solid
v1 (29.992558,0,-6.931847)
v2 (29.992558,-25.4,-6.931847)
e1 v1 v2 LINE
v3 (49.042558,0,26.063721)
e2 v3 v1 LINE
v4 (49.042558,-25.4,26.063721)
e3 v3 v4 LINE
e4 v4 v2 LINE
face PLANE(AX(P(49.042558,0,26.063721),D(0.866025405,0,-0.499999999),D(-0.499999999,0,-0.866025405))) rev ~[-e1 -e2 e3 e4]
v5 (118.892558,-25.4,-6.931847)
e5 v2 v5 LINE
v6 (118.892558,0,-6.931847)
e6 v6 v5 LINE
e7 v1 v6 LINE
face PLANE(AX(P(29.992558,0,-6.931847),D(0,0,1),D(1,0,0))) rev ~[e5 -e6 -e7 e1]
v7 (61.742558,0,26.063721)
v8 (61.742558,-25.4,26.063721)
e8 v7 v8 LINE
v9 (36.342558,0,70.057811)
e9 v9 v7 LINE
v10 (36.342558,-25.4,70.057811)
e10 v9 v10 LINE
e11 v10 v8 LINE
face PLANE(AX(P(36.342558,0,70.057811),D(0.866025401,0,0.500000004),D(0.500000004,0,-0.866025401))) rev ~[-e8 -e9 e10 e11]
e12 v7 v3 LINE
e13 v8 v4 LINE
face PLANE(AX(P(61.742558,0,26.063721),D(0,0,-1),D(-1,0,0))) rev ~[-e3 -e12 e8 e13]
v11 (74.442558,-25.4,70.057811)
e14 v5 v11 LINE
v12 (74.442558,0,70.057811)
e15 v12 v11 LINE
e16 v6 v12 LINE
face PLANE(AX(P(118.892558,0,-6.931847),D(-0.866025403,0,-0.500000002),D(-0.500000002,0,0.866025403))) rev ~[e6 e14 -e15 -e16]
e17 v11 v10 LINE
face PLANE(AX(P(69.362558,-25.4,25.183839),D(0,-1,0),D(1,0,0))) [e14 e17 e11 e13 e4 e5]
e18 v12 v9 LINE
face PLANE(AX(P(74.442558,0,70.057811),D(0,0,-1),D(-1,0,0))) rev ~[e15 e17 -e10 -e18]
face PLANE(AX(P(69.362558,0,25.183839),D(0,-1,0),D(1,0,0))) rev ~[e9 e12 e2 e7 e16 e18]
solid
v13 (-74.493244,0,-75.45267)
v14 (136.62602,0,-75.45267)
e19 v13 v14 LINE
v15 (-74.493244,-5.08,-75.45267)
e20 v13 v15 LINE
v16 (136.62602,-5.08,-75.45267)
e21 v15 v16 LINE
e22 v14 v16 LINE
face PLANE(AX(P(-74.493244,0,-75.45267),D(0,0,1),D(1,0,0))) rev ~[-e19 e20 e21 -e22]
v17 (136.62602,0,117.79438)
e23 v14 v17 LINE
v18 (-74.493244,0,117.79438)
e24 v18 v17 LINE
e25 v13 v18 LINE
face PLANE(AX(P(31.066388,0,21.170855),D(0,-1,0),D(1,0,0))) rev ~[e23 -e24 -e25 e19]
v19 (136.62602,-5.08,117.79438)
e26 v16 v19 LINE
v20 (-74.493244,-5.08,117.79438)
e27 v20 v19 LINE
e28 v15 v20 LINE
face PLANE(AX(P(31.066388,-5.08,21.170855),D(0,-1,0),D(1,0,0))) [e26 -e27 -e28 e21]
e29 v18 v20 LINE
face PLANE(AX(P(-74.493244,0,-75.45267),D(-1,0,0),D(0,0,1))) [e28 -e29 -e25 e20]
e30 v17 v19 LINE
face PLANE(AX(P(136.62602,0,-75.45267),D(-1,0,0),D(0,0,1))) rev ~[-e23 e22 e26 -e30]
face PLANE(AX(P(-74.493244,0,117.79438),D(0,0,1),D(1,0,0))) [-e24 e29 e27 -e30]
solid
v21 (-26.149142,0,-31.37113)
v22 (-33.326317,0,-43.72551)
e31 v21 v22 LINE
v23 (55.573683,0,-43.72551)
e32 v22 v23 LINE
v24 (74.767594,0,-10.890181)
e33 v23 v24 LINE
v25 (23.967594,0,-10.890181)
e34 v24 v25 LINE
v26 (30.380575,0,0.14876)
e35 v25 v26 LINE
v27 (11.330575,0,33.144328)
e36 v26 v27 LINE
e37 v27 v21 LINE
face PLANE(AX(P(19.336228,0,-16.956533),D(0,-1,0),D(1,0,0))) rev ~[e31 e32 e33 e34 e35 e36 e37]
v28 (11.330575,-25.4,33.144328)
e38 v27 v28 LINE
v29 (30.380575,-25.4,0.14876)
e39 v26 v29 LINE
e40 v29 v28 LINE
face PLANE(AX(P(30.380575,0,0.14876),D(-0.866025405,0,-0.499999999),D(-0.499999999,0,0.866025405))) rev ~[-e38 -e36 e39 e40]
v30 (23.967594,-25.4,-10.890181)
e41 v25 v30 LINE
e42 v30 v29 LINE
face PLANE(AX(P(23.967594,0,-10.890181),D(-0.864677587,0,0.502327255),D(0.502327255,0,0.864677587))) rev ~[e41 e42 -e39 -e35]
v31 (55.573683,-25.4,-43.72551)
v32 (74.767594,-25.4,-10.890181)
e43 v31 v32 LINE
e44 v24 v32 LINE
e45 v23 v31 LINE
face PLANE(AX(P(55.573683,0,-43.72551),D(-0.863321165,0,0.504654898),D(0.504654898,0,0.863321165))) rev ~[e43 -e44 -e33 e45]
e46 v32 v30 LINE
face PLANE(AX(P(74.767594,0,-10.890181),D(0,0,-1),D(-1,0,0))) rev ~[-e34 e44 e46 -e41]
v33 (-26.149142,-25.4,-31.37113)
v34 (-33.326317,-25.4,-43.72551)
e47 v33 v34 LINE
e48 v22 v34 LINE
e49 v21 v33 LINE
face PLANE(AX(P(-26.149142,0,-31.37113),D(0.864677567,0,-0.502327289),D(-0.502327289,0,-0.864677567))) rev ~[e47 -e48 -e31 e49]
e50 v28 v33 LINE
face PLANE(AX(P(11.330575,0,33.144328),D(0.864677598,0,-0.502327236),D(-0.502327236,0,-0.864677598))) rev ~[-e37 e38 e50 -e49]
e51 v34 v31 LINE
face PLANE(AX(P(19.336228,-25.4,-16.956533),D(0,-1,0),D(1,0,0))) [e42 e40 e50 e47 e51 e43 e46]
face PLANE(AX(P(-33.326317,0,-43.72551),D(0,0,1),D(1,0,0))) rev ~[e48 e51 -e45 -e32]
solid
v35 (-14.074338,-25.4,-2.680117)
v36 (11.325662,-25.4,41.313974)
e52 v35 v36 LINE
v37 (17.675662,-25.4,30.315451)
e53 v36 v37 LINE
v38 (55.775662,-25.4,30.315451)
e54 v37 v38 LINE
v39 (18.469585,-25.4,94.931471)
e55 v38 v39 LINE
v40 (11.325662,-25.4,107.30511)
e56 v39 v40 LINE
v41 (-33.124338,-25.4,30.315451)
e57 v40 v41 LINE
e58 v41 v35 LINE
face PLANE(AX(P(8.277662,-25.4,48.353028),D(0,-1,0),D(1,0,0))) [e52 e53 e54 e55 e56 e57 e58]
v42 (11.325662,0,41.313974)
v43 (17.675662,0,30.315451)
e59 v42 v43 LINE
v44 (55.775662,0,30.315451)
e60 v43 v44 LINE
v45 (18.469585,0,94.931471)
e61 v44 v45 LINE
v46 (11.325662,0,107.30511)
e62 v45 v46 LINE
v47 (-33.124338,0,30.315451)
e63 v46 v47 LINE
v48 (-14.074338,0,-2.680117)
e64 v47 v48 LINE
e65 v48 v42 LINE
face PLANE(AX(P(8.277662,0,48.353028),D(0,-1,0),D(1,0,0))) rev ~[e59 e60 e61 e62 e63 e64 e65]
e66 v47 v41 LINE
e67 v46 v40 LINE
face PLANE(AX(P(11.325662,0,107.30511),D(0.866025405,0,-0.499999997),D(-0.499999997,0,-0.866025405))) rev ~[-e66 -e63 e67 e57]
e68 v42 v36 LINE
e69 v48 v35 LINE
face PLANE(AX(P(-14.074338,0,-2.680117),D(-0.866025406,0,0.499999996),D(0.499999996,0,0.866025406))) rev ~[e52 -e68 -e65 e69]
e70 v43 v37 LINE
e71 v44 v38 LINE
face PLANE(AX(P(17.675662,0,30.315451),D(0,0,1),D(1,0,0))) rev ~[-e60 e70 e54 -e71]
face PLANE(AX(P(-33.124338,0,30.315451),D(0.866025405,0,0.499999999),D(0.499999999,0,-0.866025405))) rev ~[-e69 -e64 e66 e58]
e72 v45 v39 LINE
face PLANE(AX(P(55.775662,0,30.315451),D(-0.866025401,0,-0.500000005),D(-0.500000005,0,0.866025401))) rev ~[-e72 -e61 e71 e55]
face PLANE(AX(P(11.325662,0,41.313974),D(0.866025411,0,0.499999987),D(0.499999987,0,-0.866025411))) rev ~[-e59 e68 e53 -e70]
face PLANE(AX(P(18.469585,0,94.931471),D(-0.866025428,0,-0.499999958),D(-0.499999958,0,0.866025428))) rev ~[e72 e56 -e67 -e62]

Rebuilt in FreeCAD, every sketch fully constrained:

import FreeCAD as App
import Part
import Sketcher

V = App.Vector
Q = App.Units.Quantity

doc = App.newDocument("Part")
body = doc.addObject("PartDesign::Body", "Body")

# Sketch on XZ plane
sketch1 = body.newObject("Sketcher::SketchObject", "Sketch")
sketch1.AttachmentSupport = (doc.getObject("XZ_Plane"), [""])
sketch1.MapMode = "FlatFace"
sketch1.addGeometry(Part.LineSegment(V(-74, 118, 0), V(-74, -75, 0)), False)
sketch1.addGeometry(Part.LineSegment(V(-74, -75, 0), V(137, -75, 0)), False)
sketch1.addGeometry(Part.LineSegment(V(137, -75, 0), V(137, 118, 0)), False)
sketch1.addGeometry(Part.LineSegment(V(137, 118, 0), V(-74, 118, 0)), False)
sketch1.addConstraint(Sketcher.Constraint("Coincident", 0, 2, 1, 1))
sketch1.addConstraint(Sketcher.Constraint("Coincident", 1, 2, 2, 1))
sketch1.addConstraint(Sketcher.Constraint("Coincident", 2, 2, 3, 1))
sketch1.addConstraint(Sketcher.Constraint("Coincident", 3, 2, 0, 1))
sketch1.addConstraint(Sketcher.Constraint("Vertical", 0))
sketch1.addConstraint(Sketcher.Constraint("Horizontal", 1))
sketch1.addConstraint(Sketcher.Constraint("Vertical", 2))
sketch1.addConstraint(Sketcher.Constraint("Horizontal", 3))
sketch1.addConstraint(Sketcher.Constraint("DistanceY", 0, 2, 0, 1, 193.24705))
sketch1.addConstraint(Sketcher.Constraint("DistanceX", 1, 1, 1, 2, 211.119264))
sketch1.addConstraint(Sketcher.Constraint("DistanceY", 0, 2, -1, 1, 75.45267))
sketch1.addConstraint(Sketcher.Constraint("DistanceX", -1, 1, 1, 2, 136.62602))
pad1 = body.newObject("PartDesign::Pad", "Pad")
pad1.Profile = sketch1
pad1.Length = Q("0.2 in")
body2 = doc.addObject("PartDesign::Body", "Body001")
body2.AllowCompound = True

# Sketch on XZ plane
sketch2 = body2.newObject("Sketcher::SketchObject", "Sketch001")
sketch2.AttachmentSupport = (doc.getObject("XZ_Plane001"), [""])
sketch2.MapMode = "FlatFace"
sketch2.addGeometry(Part.LineSegment(V(-26, -31, 0), V(-33, -44, 0)), False)
sketch2.addGeometry(Part.LineSegment(V(-33, -44, 0), V(56, -44, 0)), False)
sketch2.addGeometry(Part.LineSegment(V(56, -44, 0), V(75, -11, 0)), False)
sketch2.addGeometry(Part.LineSegment(V(75, -11, 0), V(24, -11, 0)), False)
sketch2.addGeometry(Part.LineSegment(V(24, -11, 0), V(30, 0, 0)), False)
sketch2.addGeometry(Part.LineSegment(V(30, 0, 0), V(11, 33, 0)), False)
sketch2.addGeometry(Part.LineSegment(V(11, 33, 0), V(-26, -31, 0)), False)
sketch2.addGeometry(Part.LineSegment(V(18, 95, 0), V(11, 107, 0)), False)
sketch2.addGeometry(Part.LineSegment(V(11, 107, 0), V(-33, 30, 0)), False)
sketch2.addGeometry(Part.LineSegment(V(-33, 30, 0), V(-14, -3, 0)), False)
sketch2.addGeometry(Part.LineSegment(V(-14, -3, 0), V(11, 41, 0)), False)
sketch2.addGeometry(Part.LineSegment(V(11, 41, 0), V(18, 30, 0)), False)
sketch2.addGeometry(Part.LineSegment(V(18, 30, 0), V(56, 30, 0)), False)
sketch2.addGeometry(Part.LineSegment(V(56, 30, 0), V(18, 95, 0)), False)
sketch2.addGeometry(Part.LineSegment(V(119, -7, 0), V(74, 70, 0)), False)
sketch2.addGeometry(Part.LineSegment(V(74, 70, 0), V(36, 70, 0)), False)
sketch2.addGeometry(Part.LineSegment(V(36, 70, 0), V(62, 26, 0)), False)
sketch2.addGeometry(Part.LineSegment(V(62, 26, 0), V(49, 26, 0)), False)
sketch2.addGeometry(Part.LineSegment(V(49, 26, 0), V(30, -7, 0)), False)
sketch2.addGeometry(Part.LineSegment(V(30, -7, 0), V(119, -7, 0)), False)
sketch2.addConstraint(Sketcher.Constraint("Coincident", 0, 2, 1, 1))
sketch2.addConstraint(Sketcher.Constraint("Coincident", 1, 2, 2, 1))
sketch2.addConstraint(Sketcher.Constraint("Coincident", 2, 2, 3, 1))
sketch2.addConstraint(Sketcher.Constraint("Coincident", 3, 2, 4, 1))
sketch2.addConstraint(Sketcher.Constraint("Coincident", 4, 2, 5, 1))
sketch2.addConstraint(Sketcher.Constraint("Coincident", 5, 2, 6, 1))
sketch2.addConstraint(Sketcher.Constraint("Coincident", 6, 2, 0, 1))
sketch2.addConstraint(Sketcher.Constraint("Coincident", 7, 2, 8, 1))
sketch2.addConstraint(Sketcher.Constraint("Coincident", 8, 2, 9, 1))
sketch2.addConstraint(Sketcher.Constraint("Coincident", 9, 2, 10, 1))
sketch2.addConstraint(Sketcher.Constraint("Coincident", 10, 2, 11, 1))
sketch2.addConstraint(Sketcher.Constraint("Coincident", 11, 2, 12, 1))
sketch2.addConstraint(Sketcher.Constraint("Coincident", 12, 2, 13, 1))
sketch2.addConstraint(Sketcher.Constraint("Coincident", 13, 2, 7, 1))
sketch2.addConstraint(Sketcher.Constraint("Coincident", 14, 2, 15, 1))
sketch2.addConstraint(Sketcher.Constraint("Coincident", 15, 2, 16, 1))
sketch2.addConstraint(Sketcher.Constraint("Coincident", 16, 2, 17, 1))
sketch2.addConstraint(Sketcher.Constraint("Coincident", 17, 2, 18, 1))
sketch2.addConstraint(Sketcher.Constraint("Coincident", 18, 2, 19, 1))
sketch2.addConstraint(Sketcher.Constraint("Coincident", 19, 2, 14, 1))
sketch2.addConstraint(Sketcher.Constraint("Horizontal", 1))
sketch2.addConstraint(Sketcher.Constraint("Horizontal", 3))
sketch2.addConstraint(Sketcher.Constraint("Horizontal", 12))
sketch2.addConstraint(Sketcher.Constraint("Horizontal", 15))
sketch2.addConstraint(Sketcher.Constraint("Horizontal", 17))
sketch2.addConstraint(Sketcher.Constraint("Horizontal", 19))
sketch2.addConstraint(Sketcher.Constraint("Parallel", 0, 4))
sketch2.addConstraint(Sketcher.Constraint("Parallel", 4, 6))
sketch2.addConstraint(Sketcher.Constraint("Parallel", 5, 7))
sketch2.addConstraint(Sketcher.Constraint("Parallel", 7, 9))
sketch2.addConstraint(Sketcher.Constraint("Parallel", 8, 10))
sketch2.addConstraint(Sketcher.Constraint("Parallel", 9, 11))
sketch2.addConstraint(Sketcher.Constraint("Parallel", 11, 13))
sketch2.addConstraint(Sketcher.Constraint("Parallel", 13, 14))
sketch2.addConstraint(Sketcher.Constraint("Parallel", 14, 16))
sketch2.addConstraint(Sketcher.Constraint("Parallel", 10, 18))
sketch2.addConstraint(Sketcher.Constraint("Horizontal", 8, 2, 11, 2))
sketch2.addConstraint(Sketcher.Constraint("Vertical", 7, 2, 10, 2))
sketch2.addConstraint(Sketcher.Constraint("Equal", 12, 15))
sketch2.addConstraint(Sketcher.Constraint("Equal", 1, 19))
sketch2.addConstraint(Sketcher.Constraint("Equal", 0, 7))
sketch2.addConstraint(Sketcher.Constraint("Equal", 5, 9))
sketch2.addConstraint(Sketcher.Constraint("Equal", 6, 13))
sketch2.addConstraint(Sketcher.Constraint("Equal", 8, 14))
sketch2.addConstraint(Sketcher.Constraint("Equal", 10, 16))
sketch2.addConstraint(Sketcher.Constraint("Equal", 9, 18))
sketch2.addConstraint(Sketcher.Constraint("DistanceX", 3, 2, 3, 1, Q("2 in")))
sketch2.addConstraint(Sketcher.Constraint("Distance", 10, Q("2 in")))
sketch2.addConstraint(Sketcher.Constraint("DistanceX", 1, 1, 1, 2, Q("3.5 in")))
sketch2.addConstraint(Sketcher.Constraint("DistanceX", 12, 1, 12, 2, Q("1.5 in")))
sketch2.addConstraint(Sketcher.Constraint("Angle", 5, Q("120 deg")))
sketch2.addConstraint(Sketcher.Constraint("DistanceX", 6, 2, 3, 2, Q("1.9730998 in")))
sketch2.addConstraint(Sketcher.Constraint("Distance", 4, 12.76654))
sketch2.addConstraint(Sketcher.Constraint("DistanceY", 0, 2, -1, 1, 43.72551))
sketch2.addConstraint(Sketcher.Constraint("DistanceY", 2, 2, -1, 1, 10.890181))
sketch2.addConstraint(Sketcher.Constraint("DistanceY", -1, 1, 7, 2, 107.30511))
sketch2.addConstraint(Sketcher.Constraint("DistanceX", 8, 2, -1, 1, 33.124338))
sketch2.addConstraint(Sketcher.Constraint("DistanceX", -1, 1, 14, 2, 74.442558))
sketch2.addConstraint(Sketcher.Constraint("DistanceY", -1, 1, 14, 2, 70.057811))
sketch2.addConstraint(Sketcher.Constraint("DistanceX", 7, 2, 3, 2, 12.641932))
pad2 = body2.newObject("PartDesign::Pad", "Pad001")
pad2.Profile = sketch2
pad2.Length = Q("1 in")

doc.recompute()
